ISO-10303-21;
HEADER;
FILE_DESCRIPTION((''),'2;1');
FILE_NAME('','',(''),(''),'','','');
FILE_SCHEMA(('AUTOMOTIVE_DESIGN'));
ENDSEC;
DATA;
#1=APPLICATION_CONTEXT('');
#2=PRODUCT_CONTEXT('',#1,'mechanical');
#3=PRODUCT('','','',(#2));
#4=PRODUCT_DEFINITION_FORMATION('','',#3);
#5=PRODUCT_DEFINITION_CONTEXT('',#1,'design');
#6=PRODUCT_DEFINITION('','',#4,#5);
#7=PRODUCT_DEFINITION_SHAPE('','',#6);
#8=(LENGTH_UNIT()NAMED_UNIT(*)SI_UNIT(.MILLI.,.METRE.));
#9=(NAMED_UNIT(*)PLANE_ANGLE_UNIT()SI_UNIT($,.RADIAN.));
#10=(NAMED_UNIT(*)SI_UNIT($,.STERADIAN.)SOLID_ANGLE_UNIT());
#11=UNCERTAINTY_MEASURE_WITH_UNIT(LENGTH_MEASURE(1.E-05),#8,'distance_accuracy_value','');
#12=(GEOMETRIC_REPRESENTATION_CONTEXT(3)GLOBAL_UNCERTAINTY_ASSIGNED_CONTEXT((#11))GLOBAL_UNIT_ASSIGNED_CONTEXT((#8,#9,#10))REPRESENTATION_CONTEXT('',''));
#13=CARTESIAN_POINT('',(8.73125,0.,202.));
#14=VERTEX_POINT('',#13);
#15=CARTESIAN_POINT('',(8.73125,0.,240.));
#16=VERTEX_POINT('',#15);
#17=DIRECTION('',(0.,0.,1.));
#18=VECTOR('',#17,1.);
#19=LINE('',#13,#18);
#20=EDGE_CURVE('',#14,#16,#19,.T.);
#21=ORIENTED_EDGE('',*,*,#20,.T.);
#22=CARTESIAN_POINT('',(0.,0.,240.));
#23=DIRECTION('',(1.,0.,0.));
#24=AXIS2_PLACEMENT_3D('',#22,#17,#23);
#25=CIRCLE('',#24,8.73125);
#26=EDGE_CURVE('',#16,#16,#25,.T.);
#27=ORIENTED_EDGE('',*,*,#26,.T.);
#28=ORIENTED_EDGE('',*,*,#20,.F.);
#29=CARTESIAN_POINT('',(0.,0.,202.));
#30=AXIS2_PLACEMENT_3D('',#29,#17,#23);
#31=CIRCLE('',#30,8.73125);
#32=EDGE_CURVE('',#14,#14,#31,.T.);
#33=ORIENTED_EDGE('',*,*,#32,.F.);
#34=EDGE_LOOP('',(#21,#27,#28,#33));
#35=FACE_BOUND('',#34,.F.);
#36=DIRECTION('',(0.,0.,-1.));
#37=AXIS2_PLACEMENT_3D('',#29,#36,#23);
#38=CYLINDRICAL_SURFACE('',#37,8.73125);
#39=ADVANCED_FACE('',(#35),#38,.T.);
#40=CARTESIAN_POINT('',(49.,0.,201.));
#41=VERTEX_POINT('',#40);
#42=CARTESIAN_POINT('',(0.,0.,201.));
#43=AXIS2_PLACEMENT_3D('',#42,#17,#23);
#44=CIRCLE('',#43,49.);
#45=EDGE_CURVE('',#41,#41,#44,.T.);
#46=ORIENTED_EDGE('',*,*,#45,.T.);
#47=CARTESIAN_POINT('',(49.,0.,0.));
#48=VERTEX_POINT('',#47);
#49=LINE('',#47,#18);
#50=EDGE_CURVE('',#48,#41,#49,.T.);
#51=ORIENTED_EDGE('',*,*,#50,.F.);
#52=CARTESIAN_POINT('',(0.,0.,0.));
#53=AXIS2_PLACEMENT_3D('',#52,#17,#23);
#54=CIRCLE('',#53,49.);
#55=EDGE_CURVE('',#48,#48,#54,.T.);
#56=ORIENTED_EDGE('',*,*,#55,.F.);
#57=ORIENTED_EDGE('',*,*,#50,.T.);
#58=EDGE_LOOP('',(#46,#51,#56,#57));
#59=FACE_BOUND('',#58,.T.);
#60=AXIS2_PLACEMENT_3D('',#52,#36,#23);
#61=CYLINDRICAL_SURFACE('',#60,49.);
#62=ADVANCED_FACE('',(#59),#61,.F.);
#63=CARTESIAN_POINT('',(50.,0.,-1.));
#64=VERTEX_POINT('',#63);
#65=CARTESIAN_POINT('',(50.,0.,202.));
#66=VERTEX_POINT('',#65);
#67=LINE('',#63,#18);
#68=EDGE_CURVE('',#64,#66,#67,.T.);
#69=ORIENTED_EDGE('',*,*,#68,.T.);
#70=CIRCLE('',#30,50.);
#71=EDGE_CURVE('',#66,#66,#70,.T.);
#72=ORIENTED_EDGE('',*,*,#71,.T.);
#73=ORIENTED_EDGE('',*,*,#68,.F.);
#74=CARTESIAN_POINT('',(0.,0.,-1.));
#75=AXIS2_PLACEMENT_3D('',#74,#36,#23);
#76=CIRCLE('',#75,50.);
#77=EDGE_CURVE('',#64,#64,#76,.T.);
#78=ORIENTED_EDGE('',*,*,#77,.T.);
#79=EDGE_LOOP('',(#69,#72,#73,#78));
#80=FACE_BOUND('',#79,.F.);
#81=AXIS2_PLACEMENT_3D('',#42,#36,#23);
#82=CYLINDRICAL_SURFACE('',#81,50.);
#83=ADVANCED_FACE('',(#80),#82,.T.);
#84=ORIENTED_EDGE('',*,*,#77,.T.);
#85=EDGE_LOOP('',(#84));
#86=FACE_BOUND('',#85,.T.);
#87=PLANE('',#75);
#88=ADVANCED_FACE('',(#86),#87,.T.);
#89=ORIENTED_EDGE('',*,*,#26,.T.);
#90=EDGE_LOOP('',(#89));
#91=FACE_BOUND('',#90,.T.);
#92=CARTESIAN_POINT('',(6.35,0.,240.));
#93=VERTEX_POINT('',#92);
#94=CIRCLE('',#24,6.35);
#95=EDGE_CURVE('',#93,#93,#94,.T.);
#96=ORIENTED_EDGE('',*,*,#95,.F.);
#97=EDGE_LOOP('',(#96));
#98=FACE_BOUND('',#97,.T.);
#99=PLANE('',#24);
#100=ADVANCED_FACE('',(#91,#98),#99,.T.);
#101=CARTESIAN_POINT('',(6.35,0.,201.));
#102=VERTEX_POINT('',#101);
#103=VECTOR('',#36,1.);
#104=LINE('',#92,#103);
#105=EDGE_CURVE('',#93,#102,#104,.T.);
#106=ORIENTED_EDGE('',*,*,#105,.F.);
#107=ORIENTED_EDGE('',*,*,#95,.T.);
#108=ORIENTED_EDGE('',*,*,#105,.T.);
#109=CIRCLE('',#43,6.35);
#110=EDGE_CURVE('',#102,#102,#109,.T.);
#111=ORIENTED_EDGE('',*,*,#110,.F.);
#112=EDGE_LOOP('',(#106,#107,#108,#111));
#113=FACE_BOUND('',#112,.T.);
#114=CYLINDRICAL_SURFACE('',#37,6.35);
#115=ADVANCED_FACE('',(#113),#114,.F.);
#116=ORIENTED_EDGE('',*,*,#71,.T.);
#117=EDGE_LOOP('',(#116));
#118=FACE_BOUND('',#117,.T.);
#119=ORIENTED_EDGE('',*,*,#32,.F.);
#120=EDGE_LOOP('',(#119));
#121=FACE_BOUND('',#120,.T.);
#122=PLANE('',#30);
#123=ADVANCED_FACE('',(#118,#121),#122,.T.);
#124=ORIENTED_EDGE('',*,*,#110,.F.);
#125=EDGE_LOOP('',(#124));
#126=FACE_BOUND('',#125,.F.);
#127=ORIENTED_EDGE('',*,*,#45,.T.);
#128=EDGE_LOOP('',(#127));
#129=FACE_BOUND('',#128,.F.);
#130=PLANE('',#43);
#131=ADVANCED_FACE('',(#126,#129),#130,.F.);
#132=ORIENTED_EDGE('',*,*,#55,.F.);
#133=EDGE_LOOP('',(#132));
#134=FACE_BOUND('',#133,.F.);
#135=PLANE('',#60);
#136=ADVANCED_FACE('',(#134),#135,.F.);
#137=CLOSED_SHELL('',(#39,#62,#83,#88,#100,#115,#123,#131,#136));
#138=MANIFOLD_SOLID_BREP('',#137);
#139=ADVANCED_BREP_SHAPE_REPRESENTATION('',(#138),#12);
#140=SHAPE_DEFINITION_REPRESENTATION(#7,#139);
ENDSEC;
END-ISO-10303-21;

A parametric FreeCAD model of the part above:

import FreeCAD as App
import Part
import Sketcher

doc = App.newDocument("Part")
params = doc.addObject("Spreadsheet::Sheet", "Params")
for row, (alias, value) in enumerate([
    ("sketch1_diameter", "100 mm"),
    ("sketch1_diameter2", "98 mm"),
    ("pad1_length", "201 mm"),
    ("sketch2_diameter", "100 mm"),
    ("pad2_length", "1 mm"),
    ("sketch3_diameter", "100 mm"),
    ("sketch3_diameter2", "12.7 mm"),
    ("pad3_length", "1 mm"),
    ("sketch4_diameter", "12.7 mm"),
    ("pad4_length", "38 mm"),
], start=1):
    params.set(f"A{row}", alias)
    params.set(f"B{row}", "=" + value)
    params.setAlias(f"B{row}", alias)

body = doc.addObject("PartDesign::Body", "Body")

sketch1 = body.newObject("Sketcher::SketchObject", "Sketch")
sketch1.AttachmentSupport = (doc.getObject("XY_Plane"), [""])
sketch1.MapMode = "FlatFace"
sketch1.addGeometry(Part.Circle(App.Vector(0, 0, 0), App.Vector(0, 0, 1), 50), False)
sketch1.addGeometry(Part.Circle(App.Vector(0, 0, 0), App.Vector(0, 0, 1), 49), False)
sketch1.addConstraint(Sketcher.Constraint("Coincident", 0, 3, -1, 1))
sketch1.addConstraint(Sketcher.Constraint("Coincident", 1, 3, -1, 1))
sketch1.addConstraint(Sketcher.Constraint("Diameter", 0, 100.0))
sketch1.addConstraint(Sketcher.Constraint("Diameter", 1, 98.0))
sketch1.setExpression("Constraints[2]", "Params.sketch1_diameter")
sketch1.setExpression("Constraints[3]", "Params.sketch1_diameter2")
pad1 = body.newObject("PartDesign::Pad", "Pad")
pad1.Profile = sketch1
pad1.setExpression("Length", "Params.pad1_length")

sketch2 = body.newObject("Sketcher::SketchObject", "Sketch001")
sketch2.AttachmentSupport = (doc.getObject("XY_Plane"), [""])
sketch2.MapMode = "FlatFace"
sketch2.addGeometry(Part.Circle(App.Vector(0, 0, 0), App.Vector(0, 0, 1), 50), False)
sketch2.addConstraint(Sketcher.Constraint("Coincident", 0, 3, -1, 1))
sketch2.addConstraint(Sketcher.Constraint("Diameter", 0, 100.0))
sketch2.setExpression("Constraints[1]", "Params.sketch2_diameter")
pad2 = body.newObject("PartDesign::Pad", "Pad001")
pad2.Profile = sketch2
pad2.setExpression("Length", "Params.pad2_length")
pad2.Reversed = True

sketch3 = body.newObject("Sketcher::SketchObject", "Sketch002")
sketch3.AttachmentSupport = (doc.getObject("XY_Plane"), [""])
sketch3.MapMode = "FlatFace"
sketch3.AttachmentOffset = App.Placement(App.Vector(0, 0, 201), App.Rotation())
sketch3.addGeometry(Part.Circle(App.Vector(0, 0, 0), App.Vector(0, 0, 1), 50), False)
sketch3.addGeometry(Part.Circle(App.Vector(0, 0, 0), App.Vector(0, 0, 1), 6), False)
sketch3.addConstraint(Sketcher.Constraint("Coincident", 0, 3, -1, 1))
sketch3.addConstraint(Sketcher.Constraint("Coincident", 1, 3, -1, 1))
sketch3.addConstraint(Sketcher.Constraint("Diameter", 0, 100.0))
sketch3.addConstraint(Sketcher.Constraint("Diameter", 1, 12.7))
sketch3.setExpression("Constraints[2]", "Params.sketch3_diameter")
sketch3.setExpression("Constraints[3]", "Params.sketch3_diameter2")
pad3 = body.newObject("PartDesign::Pad", "Pad002")
pad3.Profile = sketch3
pad3.setExpression("Length", "Params.pad3_length")

sketch4 = body.newObject("Sketcher::SketchObject", "Sketch003")
sketch4.AttachmentSupport = (doc.getObject("XY_Plane"), [""])
sketch4.MapMode = "FlatFace"
sketch4.AttachmentOffset = App.Placement(App.Vector(0, 0, 202), App.Rotation())
sketch4.addGeometry(Part.Circle(App.Vector(0, 0, 0), App.Vector(0, 0, 1), 9), False)
sketch4.addGeometry(Part.Circle(App.Vector(0, 0, 0), App.Vector(0, 0, 1), 6), False)
sketch4.addConstraint(Sketcher.Constraint("Coincident", 0, 3, -1, 1))
sketch4.addConstraint(Sketcher.Constraint("Coincident", 1, 3, -1, 1))
sketch4.addConstraint(Sketcher.Constraint("Diameter", 1, 12.7))
sketch4.addConstraint(Sketcher.Constraint("Diameter", 0, 17.4625))
sketch4.setExpression("Constraints[2]", "Params.sketch4_diameter")
pad4 = body.newObject("PartDesign::Pad", "Pad003")
pad4.Profile = sketch4
pad4.setExpression("Length", "Params.pad4_length")

doc.recompute()
